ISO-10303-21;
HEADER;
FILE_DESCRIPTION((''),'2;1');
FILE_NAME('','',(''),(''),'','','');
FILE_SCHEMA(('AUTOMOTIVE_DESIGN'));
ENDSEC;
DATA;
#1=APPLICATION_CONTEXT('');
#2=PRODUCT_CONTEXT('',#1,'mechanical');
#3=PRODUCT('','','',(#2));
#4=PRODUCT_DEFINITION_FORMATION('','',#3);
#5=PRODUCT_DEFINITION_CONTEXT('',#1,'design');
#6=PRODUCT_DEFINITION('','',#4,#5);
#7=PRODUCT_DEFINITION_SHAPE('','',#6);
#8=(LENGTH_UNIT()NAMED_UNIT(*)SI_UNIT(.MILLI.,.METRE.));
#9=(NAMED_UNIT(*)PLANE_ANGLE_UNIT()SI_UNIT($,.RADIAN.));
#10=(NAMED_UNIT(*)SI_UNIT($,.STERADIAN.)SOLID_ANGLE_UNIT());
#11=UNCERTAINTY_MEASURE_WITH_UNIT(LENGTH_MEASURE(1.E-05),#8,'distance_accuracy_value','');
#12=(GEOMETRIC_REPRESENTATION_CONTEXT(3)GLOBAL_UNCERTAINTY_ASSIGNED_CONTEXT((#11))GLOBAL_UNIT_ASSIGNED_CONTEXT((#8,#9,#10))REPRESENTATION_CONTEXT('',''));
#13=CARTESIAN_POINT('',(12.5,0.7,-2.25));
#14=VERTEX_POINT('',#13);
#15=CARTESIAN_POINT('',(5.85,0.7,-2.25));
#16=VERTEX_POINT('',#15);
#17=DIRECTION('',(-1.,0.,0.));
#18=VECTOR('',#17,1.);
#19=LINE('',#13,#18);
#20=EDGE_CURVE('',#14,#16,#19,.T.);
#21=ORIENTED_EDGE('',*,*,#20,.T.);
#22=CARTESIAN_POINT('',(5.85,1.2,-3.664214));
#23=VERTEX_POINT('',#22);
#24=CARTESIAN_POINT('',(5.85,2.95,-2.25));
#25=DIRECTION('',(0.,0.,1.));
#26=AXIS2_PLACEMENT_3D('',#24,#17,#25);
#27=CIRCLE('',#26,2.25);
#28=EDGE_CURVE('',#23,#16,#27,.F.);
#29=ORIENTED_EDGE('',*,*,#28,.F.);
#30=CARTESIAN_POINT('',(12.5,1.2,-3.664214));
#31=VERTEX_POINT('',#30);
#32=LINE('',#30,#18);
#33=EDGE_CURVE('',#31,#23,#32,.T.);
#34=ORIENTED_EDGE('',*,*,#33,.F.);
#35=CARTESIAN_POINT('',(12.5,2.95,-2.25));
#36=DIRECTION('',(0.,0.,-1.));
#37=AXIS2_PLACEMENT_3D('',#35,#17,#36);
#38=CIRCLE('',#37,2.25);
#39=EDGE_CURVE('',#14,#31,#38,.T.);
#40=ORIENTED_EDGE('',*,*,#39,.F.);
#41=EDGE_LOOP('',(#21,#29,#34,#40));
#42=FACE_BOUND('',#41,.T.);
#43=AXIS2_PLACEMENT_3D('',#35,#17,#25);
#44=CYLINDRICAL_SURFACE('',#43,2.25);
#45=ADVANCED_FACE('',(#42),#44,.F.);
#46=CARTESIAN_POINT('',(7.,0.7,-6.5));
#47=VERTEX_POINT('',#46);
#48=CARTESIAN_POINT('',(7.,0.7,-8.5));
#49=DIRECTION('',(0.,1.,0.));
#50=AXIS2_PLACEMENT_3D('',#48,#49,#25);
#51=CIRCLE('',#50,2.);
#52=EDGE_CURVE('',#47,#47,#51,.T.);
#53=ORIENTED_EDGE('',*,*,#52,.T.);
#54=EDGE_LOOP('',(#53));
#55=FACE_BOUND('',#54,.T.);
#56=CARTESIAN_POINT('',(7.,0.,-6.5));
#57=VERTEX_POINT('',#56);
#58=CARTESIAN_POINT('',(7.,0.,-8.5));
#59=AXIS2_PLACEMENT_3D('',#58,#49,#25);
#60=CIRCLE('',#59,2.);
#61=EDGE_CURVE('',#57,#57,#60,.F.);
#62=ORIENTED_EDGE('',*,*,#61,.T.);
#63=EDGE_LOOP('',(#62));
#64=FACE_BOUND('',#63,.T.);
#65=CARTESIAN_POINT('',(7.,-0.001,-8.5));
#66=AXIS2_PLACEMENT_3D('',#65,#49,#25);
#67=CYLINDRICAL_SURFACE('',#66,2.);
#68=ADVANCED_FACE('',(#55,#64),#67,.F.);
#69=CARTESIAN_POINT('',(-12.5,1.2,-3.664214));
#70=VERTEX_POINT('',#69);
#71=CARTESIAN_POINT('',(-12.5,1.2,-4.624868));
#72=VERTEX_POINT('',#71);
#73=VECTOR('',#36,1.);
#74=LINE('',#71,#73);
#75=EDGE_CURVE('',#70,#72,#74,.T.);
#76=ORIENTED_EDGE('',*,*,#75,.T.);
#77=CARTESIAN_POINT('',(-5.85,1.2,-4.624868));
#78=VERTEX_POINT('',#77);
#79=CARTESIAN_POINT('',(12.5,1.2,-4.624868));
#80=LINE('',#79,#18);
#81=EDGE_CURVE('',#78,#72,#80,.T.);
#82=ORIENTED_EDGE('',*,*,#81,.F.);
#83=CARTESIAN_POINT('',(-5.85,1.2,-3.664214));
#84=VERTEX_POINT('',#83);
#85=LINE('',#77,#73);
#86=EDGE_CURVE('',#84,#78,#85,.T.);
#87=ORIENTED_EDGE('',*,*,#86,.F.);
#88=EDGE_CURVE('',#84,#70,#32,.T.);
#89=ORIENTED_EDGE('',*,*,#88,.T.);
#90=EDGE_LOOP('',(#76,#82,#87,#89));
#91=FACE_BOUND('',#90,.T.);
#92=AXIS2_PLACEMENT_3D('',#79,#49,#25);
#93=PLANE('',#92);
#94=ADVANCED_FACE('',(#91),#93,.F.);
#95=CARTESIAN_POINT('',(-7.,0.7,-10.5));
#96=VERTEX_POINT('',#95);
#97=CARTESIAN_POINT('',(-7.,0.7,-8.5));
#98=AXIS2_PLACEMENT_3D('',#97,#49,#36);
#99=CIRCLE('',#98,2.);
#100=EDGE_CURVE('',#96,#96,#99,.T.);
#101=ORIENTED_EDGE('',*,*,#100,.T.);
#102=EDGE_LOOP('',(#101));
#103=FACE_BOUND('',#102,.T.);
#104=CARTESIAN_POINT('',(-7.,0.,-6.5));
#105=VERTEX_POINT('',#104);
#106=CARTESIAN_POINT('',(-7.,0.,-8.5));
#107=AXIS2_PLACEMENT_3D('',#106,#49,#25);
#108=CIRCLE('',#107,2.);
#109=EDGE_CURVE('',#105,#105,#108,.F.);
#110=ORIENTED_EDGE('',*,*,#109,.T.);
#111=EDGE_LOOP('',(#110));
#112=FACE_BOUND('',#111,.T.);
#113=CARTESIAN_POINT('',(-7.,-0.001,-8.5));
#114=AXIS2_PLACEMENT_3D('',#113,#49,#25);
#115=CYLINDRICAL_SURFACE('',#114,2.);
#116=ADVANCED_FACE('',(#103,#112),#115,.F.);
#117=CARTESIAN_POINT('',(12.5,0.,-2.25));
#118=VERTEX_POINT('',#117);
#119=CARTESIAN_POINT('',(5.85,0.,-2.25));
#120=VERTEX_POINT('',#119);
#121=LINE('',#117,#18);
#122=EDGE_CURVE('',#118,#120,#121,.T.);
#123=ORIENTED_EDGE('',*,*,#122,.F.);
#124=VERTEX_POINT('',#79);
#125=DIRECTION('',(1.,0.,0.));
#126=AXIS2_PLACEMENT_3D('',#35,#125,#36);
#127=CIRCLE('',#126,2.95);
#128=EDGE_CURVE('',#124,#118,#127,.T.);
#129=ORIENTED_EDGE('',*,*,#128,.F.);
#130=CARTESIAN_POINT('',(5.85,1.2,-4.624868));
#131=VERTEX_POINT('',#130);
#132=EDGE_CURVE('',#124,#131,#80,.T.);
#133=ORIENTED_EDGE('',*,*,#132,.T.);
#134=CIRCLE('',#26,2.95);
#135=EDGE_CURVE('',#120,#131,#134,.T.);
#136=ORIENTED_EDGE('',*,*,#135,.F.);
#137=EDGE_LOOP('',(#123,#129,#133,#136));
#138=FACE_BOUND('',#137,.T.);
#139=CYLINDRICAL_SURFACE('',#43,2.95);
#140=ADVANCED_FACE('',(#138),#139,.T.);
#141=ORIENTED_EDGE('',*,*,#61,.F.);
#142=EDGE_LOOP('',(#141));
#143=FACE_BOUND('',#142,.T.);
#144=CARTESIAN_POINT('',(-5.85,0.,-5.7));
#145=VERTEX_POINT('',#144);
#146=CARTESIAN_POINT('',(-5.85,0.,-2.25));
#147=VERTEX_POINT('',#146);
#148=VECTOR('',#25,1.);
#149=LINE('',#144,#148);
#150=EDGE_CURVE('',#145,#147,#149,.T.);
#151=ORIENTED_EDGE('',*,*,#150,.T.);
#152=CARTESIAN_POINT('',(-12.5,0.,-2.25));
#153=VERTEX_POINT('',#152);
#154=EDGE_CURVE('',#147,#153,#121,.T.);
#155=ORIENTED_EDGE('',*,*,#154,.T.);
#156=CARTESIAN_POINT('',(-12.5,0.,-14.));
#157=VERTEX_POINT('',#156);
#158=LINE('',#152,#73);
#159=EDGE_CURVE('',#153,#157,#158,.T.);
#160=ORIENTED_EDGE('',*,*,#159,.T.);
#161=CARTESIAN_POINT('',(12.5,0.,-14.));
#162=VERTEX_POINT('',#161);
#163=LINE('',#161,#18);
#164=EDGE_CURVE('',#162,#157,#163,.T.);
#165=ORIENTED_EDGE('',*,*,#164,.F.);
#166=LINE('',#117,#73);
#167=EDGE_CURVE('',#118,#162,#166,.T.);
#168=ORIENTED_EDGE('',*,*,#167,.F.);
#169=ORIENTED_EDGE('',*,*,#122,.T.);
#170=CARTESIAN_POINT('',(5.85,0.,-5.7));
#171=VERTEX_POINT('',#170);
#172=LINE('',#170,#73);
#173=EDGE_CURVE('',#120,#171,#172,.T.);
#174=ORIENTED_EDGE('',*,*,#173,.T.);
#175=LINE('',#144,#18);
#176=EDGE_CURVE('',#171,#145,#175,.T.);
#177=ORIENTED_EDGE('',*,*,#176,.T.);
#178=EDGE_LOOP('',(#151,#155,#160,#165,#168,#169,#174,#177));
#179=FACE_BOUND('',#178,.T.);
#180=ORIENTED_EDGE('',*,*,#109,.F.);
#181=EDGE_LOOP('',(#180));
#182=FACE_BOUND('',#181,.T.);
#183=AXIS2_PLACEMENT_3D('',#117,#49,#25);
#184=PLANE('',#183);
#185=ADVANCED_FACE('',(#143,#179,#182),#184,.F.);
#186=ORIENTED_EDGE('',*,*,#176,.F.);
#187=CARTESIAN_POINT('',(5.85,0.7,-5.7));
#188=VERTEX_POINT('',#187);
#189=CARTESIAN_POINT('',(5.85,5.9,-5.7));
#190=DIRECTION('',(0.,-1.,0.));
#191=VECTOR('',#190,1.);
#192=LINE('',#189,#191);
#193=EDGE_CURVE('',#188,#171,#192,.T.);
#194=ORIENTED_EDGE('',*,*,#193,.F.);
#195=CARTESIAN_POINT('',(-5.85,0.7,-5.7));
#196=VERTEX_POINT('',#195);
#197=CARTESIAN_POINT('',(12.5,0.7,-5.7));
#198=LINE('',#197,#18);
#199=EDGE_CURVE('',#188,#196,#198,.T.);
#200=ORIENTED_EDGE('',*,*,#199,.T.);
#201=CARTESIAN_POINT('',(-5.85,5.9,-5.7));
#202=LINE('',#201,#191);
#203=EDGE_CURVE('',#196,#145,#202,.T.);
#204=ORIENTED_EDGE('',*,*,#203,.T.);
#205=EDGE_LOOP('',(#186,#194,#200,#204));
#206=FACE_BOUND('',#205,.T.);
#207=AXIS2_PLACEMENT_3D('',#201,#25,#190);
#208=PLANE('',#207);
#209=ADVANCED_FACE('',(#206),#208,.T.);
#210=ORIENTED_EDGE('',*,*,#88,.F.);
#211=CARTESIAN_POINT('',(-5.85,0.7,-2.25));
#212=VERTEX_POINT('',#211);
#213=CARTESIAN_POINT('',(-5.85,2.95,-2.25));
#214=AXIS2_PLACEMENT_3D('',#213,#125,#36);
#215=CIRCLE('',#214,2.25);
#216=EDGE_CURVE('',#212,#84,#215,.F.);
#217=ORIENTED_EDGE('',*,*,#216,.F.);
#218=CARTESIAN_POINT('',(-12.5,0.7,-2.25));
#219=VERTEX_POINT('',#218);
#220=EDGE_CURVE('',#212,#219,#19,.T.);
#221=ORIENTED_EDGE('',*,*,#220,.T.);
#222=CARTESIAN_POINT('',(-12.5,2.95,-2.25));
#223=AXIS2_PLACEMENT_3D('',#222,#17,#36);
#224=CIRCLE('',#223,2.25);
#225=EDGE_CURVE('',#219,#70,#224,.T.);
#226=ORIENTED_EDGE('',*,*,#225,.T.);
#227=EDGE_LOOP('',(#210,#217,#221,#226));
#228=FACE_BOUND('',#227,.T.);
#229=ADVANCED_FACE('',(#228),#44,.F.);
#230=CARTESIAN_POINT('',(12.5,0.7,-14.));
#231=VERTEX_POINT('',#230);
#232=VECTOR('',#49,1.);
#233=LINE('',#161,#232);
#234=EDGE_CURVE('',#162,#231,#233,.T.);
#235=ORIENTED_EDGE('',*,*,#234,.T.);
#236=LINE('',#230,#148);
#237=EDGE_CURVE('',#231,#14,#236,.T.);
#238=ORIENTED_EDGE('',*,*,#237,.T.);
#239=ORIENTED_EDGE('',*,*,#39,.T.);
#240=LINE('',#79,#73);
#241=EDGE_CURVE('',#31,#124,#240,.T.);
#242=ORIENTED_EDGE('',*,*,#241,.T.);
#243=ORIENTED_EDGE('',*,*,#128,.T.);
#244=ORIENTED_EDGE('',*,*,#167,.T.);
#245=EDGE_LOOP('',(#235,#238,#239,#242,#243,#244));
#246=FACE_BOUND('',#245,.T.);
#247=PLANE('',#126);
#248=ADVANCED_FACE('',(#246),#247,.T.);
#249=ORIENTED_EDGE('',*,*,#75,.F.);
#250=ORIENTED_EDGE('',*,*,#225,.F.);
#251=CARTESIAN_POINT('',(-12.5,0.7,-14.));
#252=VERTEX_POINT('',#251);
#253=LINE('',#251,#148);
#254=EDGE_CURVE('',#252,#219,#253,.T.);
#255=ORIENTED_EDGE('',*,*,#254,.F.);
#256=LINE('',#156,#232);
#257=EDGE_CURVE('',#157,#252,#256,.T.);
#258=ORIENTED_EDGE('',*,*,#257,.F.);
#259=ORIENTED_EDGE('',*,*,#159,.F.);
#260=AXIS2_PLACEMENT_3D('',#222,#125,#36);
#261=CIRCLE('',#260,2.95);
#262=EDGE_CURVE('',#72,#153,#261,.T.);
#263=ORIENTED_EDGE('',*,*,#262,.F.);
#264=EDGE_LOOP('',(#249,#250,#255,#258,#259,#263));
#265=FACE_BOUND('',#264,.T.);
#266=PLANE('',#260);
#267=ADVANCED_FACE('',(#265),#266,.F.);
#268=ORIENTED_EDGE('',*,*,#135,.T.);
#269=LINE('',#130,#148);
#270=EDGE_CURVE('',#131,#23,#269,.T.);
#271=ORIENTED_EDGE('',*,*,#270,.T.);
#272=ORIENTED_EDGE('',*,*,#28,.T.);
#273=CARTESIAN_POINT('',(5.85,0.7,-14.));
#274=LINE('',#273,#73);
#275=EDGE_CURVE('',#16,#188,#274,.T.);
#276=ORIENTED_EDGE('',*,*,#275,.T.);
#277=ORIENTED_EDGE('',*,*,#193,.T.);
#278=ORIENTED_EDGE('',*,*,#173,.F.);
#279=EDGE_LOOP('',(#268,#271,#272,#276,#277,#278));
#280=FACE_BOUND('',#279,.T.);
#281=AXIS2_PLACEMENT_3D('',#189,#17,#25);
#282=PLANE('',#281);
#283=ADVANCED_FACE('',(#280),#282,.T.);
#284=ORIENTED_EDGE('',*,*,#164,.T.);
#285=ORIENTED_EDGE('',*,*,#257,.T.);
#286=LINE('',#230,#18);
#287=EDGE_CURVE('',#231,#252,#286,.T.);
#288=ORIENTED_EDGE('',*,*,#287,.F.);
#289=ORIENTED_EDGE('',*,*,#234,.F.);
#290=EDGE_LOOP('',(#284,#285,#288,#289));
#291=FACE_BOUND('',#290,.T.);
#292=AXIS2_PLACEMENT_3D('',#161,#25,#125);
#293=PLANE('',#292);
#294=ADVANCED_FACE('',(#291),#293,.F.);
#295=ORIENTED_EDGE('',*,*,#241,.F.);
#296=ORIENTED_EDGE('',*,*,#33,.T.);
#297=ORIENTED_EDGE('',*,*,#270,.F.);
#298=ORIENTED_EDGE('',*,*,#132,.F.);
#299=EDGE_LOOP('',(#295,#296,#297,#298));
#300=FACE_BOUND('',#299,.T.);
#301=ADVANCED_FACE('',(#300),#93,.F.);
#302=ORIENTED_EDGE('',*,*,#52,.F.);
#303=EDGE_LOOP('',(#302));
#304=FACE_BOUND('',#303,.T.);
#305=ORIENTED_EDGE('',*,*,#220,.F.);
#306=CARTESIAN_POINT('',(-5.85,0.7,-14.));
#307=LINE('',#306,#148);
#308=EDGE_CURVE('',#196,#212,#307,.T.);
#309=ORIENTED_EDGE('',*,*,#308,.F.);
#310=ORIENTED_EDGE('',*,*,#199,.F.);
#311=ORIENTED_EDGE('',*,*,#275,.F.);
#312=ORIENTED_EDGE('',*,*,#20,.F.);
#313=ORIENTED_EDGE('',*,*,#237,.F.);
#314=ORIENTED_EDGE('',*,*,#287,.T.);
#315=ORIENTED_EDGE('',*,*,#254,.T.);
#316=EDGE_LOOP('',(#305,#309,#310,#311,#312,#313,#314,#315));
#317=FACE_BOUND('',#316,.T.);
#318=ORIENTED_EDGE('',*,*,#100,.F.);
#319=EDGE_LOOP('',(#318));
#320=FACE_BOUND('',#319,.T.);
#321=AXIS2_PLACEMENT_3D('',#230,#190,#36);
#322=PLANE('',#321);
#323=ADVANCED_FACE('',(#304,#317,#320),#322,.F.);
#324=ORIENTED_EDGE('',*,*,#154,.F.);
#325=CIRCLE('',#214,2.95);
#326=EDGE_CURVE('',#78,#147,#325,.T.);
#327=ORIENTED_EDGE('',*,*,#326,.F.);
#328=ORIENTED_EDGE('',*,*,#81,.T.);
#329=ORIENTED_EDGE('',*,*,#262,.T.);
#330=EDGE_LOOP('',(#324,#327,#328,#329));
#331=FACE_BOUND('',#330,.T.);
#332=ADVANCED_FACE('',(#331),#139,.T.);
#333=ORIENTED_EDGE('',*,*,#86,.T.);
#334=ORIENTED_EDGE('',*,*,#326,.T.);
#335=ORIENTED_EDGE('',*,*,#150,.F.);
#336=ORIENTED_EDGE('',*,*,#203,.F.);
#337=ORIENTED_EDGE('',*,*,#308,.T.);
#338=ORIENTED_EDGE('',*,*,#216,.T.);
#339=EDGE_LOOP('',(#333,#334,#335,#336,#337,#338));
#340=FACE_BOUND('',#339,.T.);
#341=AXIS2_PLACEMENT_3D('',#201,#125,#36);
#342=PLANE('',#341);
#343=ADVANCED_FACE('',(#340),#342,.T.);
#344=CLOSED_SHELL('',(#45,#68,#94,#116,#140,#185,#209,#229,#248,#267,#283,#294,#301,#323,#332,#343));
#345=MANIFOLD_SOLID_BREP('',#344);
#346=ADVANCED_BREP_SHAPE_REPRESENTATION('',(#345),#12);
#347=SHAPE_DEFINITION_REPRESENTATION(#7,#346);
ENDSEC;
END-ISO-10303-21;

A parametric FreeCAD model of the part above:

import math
import FreeCAD as App
import Part
import Sketcher
from FreeCAD import Vector
Q = App.Units.Quantity


def add_polygon(sketch, points):
    """Adds a closed chain of lines whose ends are joined by coincident constraints."""
    first, n = sketch.GeometryCount, len(points)
    for a, b in zip(points, points[1:] + points[:1]):
        sketch.addGeometry(Part.LineSegment(App.Vector(*a, 0), App.Vector(*b, 0)), False)
    for i in range(n):
        sketch.addConstraint(Sketcher.Constraint("Coincident", first + i, 2, first + (i + 1) % n, 1))

doc = App.newDocument("Part")
body = doc.addObject("PartDesign::Body", "Body")

# Sketch on YZ plane
sketch1 = body.newObject("Sketcher::SketchObject", "Sketch")
sketch1.AttachmentSupport = (doc.getObject("YZ_Plane"), [""])
sketch1.MapMode = "FlatFace"
sketch1.addGeometry([
    Part.LineSegment(Vector(0, -14, 0), Vector(0.7, -14, 0)),  # 0
    Part.LineSegment(Vector(0.7, -14, 0), Vector(0.7, -2.2, 0)),  # 1
    Part.ArcOfCircle(Part.Circle(Vector(3, -2.2, 0), Vector(0, 0, 1), 2.2), math.radians(-141), math.radians(180)),  # 2
    Part.LineSegment(Vector(1.2, -3.7, 0), Vector(1.2, -4.6, 0)),  # 3
    Part.ArcOfCircle(Part.Circle(Vector(3, -2.2, 0), Vector(0, 0, 1), 3), math.radians(-126), math.radians(180)),  # 4
    Part.LineSegment(Vector(0, -2.2, 0), Vector(0, -14, 0)),  # 5
], False)
sketch1.addConstraint([
    Sketcher.Constraint("Coincident", 0, 2, 1, 1),
    Sketcher.Constraint("Tangent", 1, 2, 2, 2),
    Sketcher.Constraint("Coincident", 2, 1, 3, 1),
    Sketcher.Constraint("Coincident", 3, 2, 4, 1),
    Sketcher.Constraint("Tangent", 4, 2, 5, 1),
    Sketcher.Constraint("Coincident", 5, 2, 0, 1),
    Sketcher.Constraint("Horizontal", 0),
    Sketcher.Constraint("Vertical", 1),
    Sketcher.Constraint("Vertical", 3),
    Sketcher.Constraint("Vertical", 5),
    Sketcher.Constraint("Coincident", 4, 3, 2, 3),
    Sketcher.Constraint("PointOnObject", 4, 2, -2),
    Sketcher.Constraint("Radius", 2, Q("2.25 mm")),
    Sketcher.Constraint("Radius", 4, Q("2.95 mm")),
    Sketcher.Constraint("DistanceY", 0, 2, -1, 1, Q("14 mm")),
    Sketcher.Constraint("DistanceY", 1, 1, 1, 2, Q("11.75 mm")),
    Sketcher.Constraint("DistanceX", -1, 1, 2, 1, Q("1.2 mm")),
])
pad1 = body.newObject("PartDesign::Pad", "Pad")
pad1.Profile = sketch1
pad1.Length = 25
pad1.Midplane = True

# Sketch on XZ plane
sketch2 = body.newObject("Sketcher::SketchObject", "Sketch001")
sketch2.AttachmentSupport = (doc.getObject("XZ_Plane"), [""])
sketch2.MapMode = "FlatFace"
sketch2.AttachmentOffset = App.Placement(Vector(0, 0, -0.7), App.Rotation())
sketch2.addGeometry(Part.Circle(Vector(7, -8.5, 0), Vector(0, 0, 1), 2), False)
sketch2.addConstraint([
    Sketcher.Constraint("Diameter", 0, Q("4 mm")),
    Sketcher.Constraint("DistanceX", -1, 1, 0, 3, Q("7 mm")),
    Sketcher.Constraint("DistanceY", 0, 3, -1, 1, Q("8.5 mm")),
])
pocket1 = body.newObject("PartDesign::Pocket", "Pocket")
pocket1.Profile = sketch2
pocket1.Type = "UpToFirst"
pocket1.Reversed = True

# Sketch on XZ plane
sketch3 = body.newObject("Sketcher::SketchObject", "Sketch002")
sketch3.AttachmentSupport = (doc.getObject("XZ_Plane"), [""])
sketch3.MapMode = "FlatFace"
sketch3.AttachmentOffset = App.Placement(Vector(0, 0, -0.7), App.Rotation())
sketch3.addGeometry(Part.Circle(Vector(-7, -8.5, 0), Vector(0, 0, 1), 2), False)
sketch3.addConstraint([
    Sketcher.Constraint("Diameter", 0, Q("4 mm")),
    Sketcher.Constraint("DistanceX", 0, 3, -1, 1, Q("7 mm")),
    Sketcher.Constraint("DistanceY", 0, 3, -1, 1, Q("8.5 mm")),
])
pocket2 = body.newObject("PartDesign::Pocket", "Pocket001")
pocket2.Profile = sketch3
pocket2.Type = "UpToFirst"
pocket2.Reversed = True

# Sketch on XZ plane
sketch4 = body.newObject("Sketcher::SketchObject", "Sketch003")
sketch4.AttachmentSupport = (doc.getObject("XZ_Plane"), [""])
sketch4.MapMode = "FlatFace"
sketch4.AttachmentOffset = App.Placement(Vector(0, 0, -0.7), App.Rotation())
add_polygon(sketch4, [(-6, -6), (-6, 1), (6, 1), (6, -6)])  # lines 0-3
sketch4.addConstraint([
    Sketcher.Constraint("Vertical", 0),
    Sketcher.Constraint("Horizontal", 1),
    Sketcher.Constraint("Vertical", 2),
    Sketcher.Constraint("Horizontal", 3),
    Sketcher.Constraint("DistanceX", 1, 1, 1, 2, Q("11.7 mm")),
    Sketcher.Constraint("DistanceY", 0, 1, 0, 2, Q("6.4 mm")),
    Sketcher.Constraint("DistanceY", -1, 1, 0, 2, Q("0.7 mm")),
    Sketcher.Constraint("DistanceX", 0, 2, -1, 1, Q("5.85 mm")),
])
pocket3 = body.newObject("PartDesign::Pocket", "Pocket002")
pocket3.Profile = sketch4
pocket3.Type = "ThroughAll"
pocket3.Midplane = True

doc.recompute()
